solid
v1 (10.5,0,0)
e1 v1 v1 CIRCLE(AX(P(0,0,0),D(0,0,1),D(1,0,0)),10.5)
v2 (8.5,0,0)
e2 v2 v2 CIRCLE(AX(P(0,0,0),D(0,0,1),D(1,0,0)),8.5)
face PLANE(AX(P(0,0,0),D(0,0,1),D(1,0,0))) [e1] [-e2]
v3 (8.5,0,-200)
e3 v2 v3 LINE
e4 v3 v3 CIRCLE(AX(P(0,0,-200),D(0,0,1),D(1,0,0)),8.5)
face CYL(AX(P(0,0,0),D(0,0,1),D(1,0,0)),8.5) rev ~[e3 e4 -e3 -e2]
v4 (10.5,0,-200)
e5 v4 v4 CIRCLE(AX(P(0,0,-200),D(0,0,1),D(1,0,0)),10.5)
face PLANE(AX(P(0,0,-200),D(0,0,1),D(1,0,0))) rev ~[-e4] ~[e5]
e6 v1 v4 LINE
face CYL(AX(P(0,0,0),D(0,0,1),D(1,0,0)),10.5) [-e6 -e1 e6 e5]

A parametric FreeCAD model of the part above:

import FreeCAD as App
import Part
import Sketcher

V = App.Vector

doc = App.newDocument("Part")
params = doc.addObject("Spreadsheet::Sheet", "Params")
for row, (alias, value) in enumerate([
    ("sketch1_diameter", "21 mm"),
    ("sketch1_diameter2", "17 mm"),
    ("pad1_length", "200 mm"),
], start=1):
    params.set(f"A{row}", alias)
    params.set(f"B{row}", "=" + value)
    params.setAlias(f"B{row}", alias)

body = doc.addObject("PartDesign::Body", "Body")

# Sketch on XY plane
sketch1 = body.newObject("Sketcher::SketchObject", "Sketch")
sketch1.AttachmentSupport = (doc.getObject("XY_Plane"), [""])
sketch1.MapMode = "FlatFace"
sketch1.addGeometry([
    Part.Circle(V(0, 0, 0), V(0, 0, 1), 10),
    Part.Circle(V(0, 0, 0), V(0, 0, 1), 8),
], False)
sketch1.addConstraint([
    Sketcher.Constraint("Coincident", 0, 3, -1, 1),
    Sketcher.Constraint("Coincident", 1, 3, -1, 1),
    Sketcher.Constraint("Diameter", 0, 21.0),
    Sketcher.Constraint("Diameter", 1, 17.0),
])
sketch1.setExpression("Constraints[2]", "Params.sketch1_diameter")
sketch1.setExpression("Constraints[3]", "Params.sketch1_diameter2")
pad1 = body.newObject("PartDesign::Pad", "Pad")
pad1.Profile = sketch1
pad1.setExpression("Length", "Params.pad1_length")
pad1.Reversed = True

doc.recompute()
